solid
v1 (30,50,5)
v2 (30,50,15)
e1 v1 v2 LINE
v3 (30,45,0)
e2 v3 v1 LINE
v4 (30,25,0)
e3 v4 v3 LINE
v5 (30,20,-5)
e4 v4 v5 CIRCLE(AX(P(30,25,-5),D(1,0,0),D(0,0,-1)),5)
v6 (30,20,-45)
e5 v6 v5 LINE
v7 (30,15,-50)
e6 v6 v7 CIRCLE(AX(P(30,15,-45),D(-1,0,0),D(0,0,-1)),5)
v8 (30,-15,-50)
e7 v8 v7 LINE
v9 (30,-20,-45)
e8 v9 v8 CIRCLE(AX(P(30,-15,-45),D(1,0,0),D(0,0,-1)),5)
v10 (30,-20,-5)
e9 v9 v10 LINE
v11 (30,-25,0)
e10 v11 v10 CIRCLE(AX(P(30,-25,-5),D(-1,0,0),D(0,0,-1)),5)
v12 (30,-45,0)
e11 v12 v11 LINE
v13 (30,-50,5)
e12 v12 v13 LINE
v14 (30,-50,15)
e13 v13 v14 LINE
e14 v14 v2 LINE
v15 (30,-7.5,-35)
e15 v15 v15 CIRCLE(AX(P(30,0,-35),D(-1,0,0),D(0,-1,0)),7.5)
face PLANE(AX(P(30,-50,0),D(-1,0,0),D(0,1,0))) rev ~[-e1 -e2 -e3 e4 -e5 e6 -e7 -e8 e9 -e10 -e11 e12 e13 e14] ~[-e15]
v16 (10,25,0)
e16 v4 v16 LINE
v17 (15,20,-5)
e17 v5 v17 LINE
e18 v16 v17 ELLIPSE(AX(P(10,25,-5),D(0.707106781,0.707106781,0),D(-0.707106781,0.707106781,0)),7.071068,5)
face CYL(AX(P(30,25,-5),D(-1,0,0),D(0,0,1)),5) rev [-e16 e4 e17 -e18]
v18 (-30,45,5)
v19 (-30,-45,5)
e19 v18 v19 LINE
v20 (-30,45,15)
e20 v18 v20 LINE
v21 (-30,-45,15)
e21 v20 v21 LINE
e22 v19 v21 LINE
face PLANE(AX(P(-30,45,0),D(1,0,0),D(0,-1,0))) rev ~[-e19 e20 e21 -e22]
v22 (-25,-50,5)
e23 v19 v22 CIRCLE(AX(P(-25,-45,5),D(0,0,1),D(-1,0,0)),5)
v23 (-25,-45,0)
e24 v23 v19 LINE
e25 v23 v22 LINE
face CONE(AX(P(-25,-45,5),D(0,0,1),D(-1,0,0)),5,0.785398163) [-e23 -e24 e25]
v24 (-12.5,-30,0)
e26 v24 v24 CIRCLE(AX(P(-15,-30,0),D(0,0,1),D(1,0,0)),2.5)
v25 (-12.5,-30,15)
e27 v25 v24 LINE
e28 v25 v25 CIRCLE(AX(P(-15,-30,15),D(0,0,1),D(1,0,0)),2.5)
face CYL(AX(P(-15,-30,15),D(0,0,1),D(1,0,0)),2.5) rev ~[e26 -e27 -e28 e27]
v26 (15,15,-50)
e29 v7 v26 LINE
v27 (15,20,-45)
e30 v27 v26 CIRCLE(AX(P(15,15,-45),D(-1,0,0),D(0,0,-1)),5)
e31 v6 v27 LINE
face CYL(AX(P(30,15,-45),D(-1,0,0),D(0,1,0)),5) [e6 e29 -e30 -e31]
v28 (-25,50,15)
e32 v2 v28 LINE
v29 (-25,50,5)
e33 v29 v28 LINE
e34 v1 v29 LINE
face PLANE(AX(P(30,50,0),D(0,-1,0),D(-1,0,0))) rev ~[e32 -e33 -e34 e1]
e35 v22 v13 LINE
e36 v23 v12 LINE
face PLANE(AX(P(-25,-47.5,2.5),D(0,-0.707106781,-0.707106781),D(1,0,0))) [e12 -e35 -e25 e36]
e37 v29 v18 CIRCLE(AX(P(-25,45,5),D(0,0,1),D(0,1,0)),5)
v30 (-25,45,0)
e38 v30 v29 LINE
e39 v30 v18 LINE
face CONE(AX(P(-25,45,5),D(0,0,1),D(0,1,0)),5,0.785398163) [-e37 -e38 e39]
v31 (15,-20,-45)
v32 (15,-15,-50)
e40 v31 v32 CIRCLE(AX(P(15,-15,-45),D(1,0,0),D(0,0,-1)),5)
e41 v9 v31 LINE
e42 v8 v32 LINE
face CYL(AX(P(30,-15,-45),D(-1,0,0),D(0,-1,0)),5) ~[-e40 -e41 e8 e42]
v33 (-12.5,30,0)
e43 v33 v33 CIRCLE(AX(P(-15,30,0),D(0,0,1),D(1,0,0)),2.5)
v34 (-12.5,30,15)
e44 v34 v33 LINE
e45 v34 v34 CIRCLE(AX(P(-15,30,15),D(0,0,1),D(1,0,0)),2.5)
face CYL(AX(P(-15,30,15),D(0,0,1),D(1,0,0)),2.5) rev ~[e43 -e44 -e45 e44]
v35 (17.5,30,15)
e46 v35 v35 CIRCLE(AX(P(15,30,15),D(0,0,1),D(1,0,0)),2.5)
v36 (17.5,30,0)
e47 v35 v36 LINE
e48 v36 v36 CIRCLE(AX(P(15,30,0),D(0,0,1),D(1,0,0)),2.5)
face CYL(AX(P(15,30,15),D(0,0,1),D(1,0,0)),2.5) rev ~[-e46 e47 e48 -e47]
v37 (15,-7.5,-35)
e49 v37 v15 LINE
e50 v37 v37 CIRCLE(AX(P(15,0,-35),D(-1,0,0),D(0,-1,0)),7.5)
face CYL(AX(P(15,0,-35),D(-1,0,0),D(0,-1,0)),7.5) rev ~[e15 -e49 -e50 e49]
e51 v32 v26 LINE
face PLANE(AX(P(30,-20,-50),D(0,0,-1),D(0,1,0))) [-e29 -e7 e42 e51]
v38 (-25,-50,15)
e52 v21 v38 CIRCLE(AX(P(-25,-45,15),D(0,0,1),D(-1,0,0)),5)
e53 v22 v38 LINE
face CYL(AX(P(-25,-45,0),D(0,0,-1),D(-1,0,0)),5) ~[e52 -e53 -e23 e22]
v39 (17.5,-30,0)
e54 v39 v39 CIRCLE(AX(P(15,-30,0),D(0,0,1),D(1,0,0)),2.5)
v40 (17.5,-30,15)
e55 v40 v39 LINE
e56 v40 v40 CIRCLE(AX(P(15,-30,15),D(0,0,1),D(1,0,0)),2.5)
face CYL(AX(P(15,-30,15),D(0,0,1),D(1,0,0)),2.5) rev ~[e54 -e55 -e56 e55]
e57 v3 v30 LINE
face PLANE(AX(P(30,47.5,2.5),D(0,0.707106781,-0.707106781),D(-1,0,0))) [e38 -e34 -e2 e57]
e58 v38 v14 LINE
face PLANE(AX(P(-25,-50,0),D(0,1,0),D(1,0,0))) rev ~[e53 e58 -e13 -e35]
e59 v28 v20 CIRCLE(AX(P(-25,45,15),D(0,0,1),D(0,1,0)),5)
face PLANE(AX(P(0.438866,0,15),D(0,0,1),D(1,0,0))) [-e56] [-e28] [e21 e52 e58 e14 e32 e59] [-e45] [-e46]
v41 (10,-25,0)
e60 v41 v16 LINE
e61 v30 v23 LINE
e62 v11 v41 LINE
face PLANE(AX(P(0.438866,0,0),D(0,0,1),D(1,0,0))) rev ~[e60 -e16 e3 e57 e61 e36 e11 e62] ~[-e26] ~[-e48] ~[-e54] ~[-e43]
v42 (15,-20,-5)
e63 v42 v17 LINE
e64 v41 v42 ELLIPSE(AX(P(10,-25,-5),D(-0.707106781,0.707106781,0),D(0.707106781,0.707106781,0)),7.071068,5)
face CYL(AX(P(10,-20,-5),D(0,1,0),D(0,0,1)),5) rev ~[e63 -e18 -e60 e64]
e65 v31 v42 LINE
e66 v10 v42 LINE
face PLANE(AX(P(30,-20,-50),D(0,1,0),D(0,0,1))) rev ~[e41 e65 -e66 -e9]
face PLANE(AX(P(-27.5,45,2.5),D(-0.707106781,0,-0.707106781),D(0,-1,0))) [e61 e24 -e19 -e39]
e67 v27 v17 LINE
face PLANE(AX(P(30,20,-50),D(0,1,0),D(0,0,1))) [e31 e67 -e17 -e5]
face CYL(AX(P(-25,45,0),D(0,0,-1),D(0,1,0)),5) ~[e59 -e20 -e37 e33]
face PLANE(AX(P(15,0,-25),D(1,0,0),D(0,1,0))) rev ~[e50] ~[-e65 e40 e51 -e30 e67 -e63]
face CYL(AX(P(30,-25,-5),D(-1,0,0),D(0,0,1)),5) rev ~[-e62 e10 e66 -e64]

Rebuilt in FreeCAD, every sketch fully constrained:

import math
import FreeCAD as App
import Part
import Sketcher
Q = App.Units.Quantity


def edges_at(feature, points):
    """Names of the edges that pass closest to the given points."""
    edges = feature.Shape.Edges
    near = lambda p: min(range(len(edges)), key=lambda i: edges[i].distToShape(Part.Vertex(*p))[0])
    return sorted({f"Edge{near(p) + 1}" for p in points})


def add_polygon(sketch, points):
    """Adds a closed chain of lines whose ends are joined by coincident constraints."""
    first, n = sketch.GeometryCount, len(points)
    for a, b in zip(points, points[1:] + points[:1]):
        sketch.addGeometry(Part.LineSegment(App.Vector(*a, 0), App.Vector(*b, 0)), False)
    for i in range(n):
        sketch.addConstraint(Sketcher.Constraint("Coincident", first + i, 2, first + (i + 1) % n, 1))

doc = App.newDocument("Part")
params = doc.addObject("Spreadsheet::Sheet", "Params")
for row, (alias, value) in enumerate([
    ("sketch1_radius", "5 mm"),
    ("sketch1_width", "55 mm"),
    ("sketch1_height", "90 mm"),
    ("pad1_length", "15 mm"),
    ("sketch2_width", "40 mm"),
    ("sketch2_height", "50 mm"),
    ("pad2_length", "15 mm"),
    ("fillet_radius", "5 mm"),
    ("chamfer_size", "5 mm"),
    ("sketch3_diameter", "15 mm"),
    ("pocket1_length", "25 mm"),
    ("sketch4_diameter", "5 mm"),
    ("pocket2_length", "25 mm"),
], start=1):
    params.set(f"A{row}", alias)
    params.set(f"B{row}", "=" + value)
    params.setAlias(f"B{row}", alias)

body = doc.addObject("PartDesign::Body", "Body")

sketch1 = body.newObject("Sketcher::SketchObject", "Sketch")
sketch1.AttachmentSupport = (doc.getObject("XY_Plane"), [""])
sketch1.MapMode = "FlatFace"
sketch1.addGeometry(Part.LineSegment(App.Vector(30, 50, 0), App.Vector(-25, 50, 0)), False)
sketch1.addGeometry(Part.ArcOfCircle(Part.Circle(App.Vector(-25, 45, 0), App.Vector(0, 0, 1), 5), math.radians(90), math.radians(180)), False)
sketch1.addGeometry(Part.LineSegment(App.Vector(-30, 45, 0), App.Vector(-30, -45, 0)), False)
sketch1.addGeometry(Part.ArcOfCircle(Part.Circle(App.Vector(-25, -45, 0), App.Vector(0, 0, 1), 5), math.radians(180), math.radians(270)), False)
sketch1.addGeometry(Part.LineSegment(App.Vector(-25, -50, 0), App.Vector(30, -50, 0)), False)
sketch1.addGeometry(Part.LineSegment(App.Vector(30, -50, 0), App.Vector(30, 50, 0)), False)
sketch1.addConstraint(Sketcher.Constraint("Tangent", 0, 2, 1, 1))
sketch1.addConstraint(Sketcher.Constraint("Tangent", 1, 2, 2, 1))
sketch1.addConstraint(Sketcher.Constraint("Tangent", 2, 2, 3, 1))
sketch1.addConstraint(Sketcher.Constraint("Tangent", 3, 2, 4, 1))
sketch1.addConstraint(Sketcher.Constraint("Coincident", 4, 2, 5, 1))
sketch1.addConstraint(Sketcher.Constraint("Coincident", 5, 2, 0, 1))
sketch1.addConstraint(Sketcher.Constraint("Horizontal", 0))
sketch1.addConstraint(Sketcher.Constraint("Vertical", 2))
sketch1.addConstraint(Sketcher.Constraint("Horizontal", 4))
sketch1.addConstraint(Sketcher.Constraint("Vertical", 5))
sketch1.addConstraint(Sketcher.Constraint("Equal", 1, 3))
sketch1.addConstraint(Sketcher.Constraint("Radius", 1, Q("5 mm")))
sketch1.addConstraint(Sketcher.Constraint("DistanceX", 0, 2, 0, 1, Q("55 mm")))
sketch1.addConstraint(Sketcher.Constraint("DistanceY", 2, 2, 2, 1, Q("90 mm")))
sketch1.addConstraint(Sketcher.Constraint("DistanceX", 1, 3, -1, 1, Q("25 mm")))
sketch1.addConstraint(Sketcher.Constraint("DistanceY", -1, 1, 1, 3, Q("45 mm")))
sketch1.setExpression("Constraints[11]", "Params.sketch1_radius")
sketch1.setExpression("Constraints[12]", "Params.sketch1_width")
sketch1.setExpression("Constraints[13]", "Params.sketch1_height")
pad1 = body.newObject("PartDesign::Pad", "Pad")
pad1.Profile = sketch1
pad1.setExpression("Length", "Params.pad1_length")

sketch2 = body.newObject("Sketcher::SketchObject", "Sketch001")
sketch2.AttachmentSupport = (doc.getObject("YZ_Plane"), [""])
sketch2.MapMode = "FlatFace"
sketch2.AttachmentOffset = App.Placement(App.Vector(0, 0, 30), App.Rotation())
add_polygon(sketch2, [(-20, 0), (-20, -50), (20, -50), (20, 0)])
sketch2.addConstraint(Sketcher.Constraint("Vertical", 0))
sketch2.addConstraint(Sketcher.Constraint("Horizontal", 1))
sketch2.addConstraint(Sketcher.Constraint("Vertical", 2))
sketch2.addConstraint(Sketcher.Constraint("Horizontal", 3))
sketch2.addConstraint(Sketcher.Constraint("Symmetric", 2, 2, 3, 2, -1, 1))
sketch2.addConstraint(Sketcher.Constraint("DistanceX", 1, 1, 1, 2, Q("40 mm")))
sketch2.addConstraint(Sketcher.Constraint("DistanceY", 0, 2, 0, 1, Q("50 mm")))
sketch2.setExpression("Constraints[9]", "Params.sketch2_width")
sketch2.setExpression("Constraints[10]", "Params.sketch2_height")
pad2 = body.newObject("PartDesign::Pad", "Pad001")
pad2.Profile = sketch2
pad2.setExpression("Length", "Params.pad2_length")
pad2.Reversed = True
doc.recompute()

fillet = body.newObject("PartDesign::Fillet", "Fillet")
fillet.Base = (pad2, edges_at(pad2, [
    (22.5, 20, 0),
    (15, 0, 0),
    (22.5, 20, -50),
    (22.5, -20, -50),
    (22.5, -20, 0),
]))
fillet.setExpression("Radius", "Params.fillet_radius")
doc.recompute()

chamfer = body.newObject("PartDesign::Chamfer", "Chamfer")
chamfer.Base = (fillet, edges_at(fillet, [(2.5, 50, 0)]))
chamfer.setExpression("Size", "Params.chamfer_size")

sketch3 = body.newObject("Sketcher::SketchObject", "Sketch002")
sketch3.AttachmentSupport = (doc.getObject("YZ_Plane"), [""])
sketch3.MapMode = "FlatFace"
sketch3.AttachmentOffset = App.Placement(App.Vector(0, 0, 15), App.Rotation())
sketch3.addGeometry(Part.Circle(App.Vector(0, -35, 0), App.Vector(0, 0, 1), 8), False)
sketch3.addConstraint(Sketcher.Constraint("PointOnObject", 0, 3, -2))
sketch3.addConstraint(Sketcher.Constraint("Diameter", 0, Q("15 mm")))
sketch3.addConstraint(Sketcher.Constraint("DistanceY", 0, 3, -1, 1, Q("35 mm")))
sketch3.setExpression("Constraints[1]", "Params.sketch3_diameter")
pocket1 = body.newObject("PartDesign::Pocket", "Pocket")
pocket1.Profile = sketch3
pocket1.setExpression("Length", "Params.pocket1_length")
pocket1.Reversed = True

sketch4 = body.newObject("Sketcher::SketchObject", "Sketch003")
sketch4.AttachmentSupport = (doc.getObject("XY_Plane"), [""])
sketch4.MapMode = "FlatFace"
sketch4.AttachmentOffset = App.Placement(App.Vector(0, 0, 15), App.Rotation())
sketch4.addGeometry(Part.Circle(App.Vector(-15, -30, 0), App.Vector(0, 0, 1), 2.5), False)
sketch4.addGeometry(Part.Circle(App.Vector(15, -30, 0), App.Vector(0, 0, 1), 2.5), False)
sketch4.addGeometry(Part.Circle(App.Vector(15, 30, 0), App.Vector(0, 0, 1), 2.5), False)
sketch4.addGeometry(Part.Circle(App.Vector(-15, 30, 0), App.Vector(0, 0, 1), 2.5), False)
sketch4.addConstraint(Sketcher.Constraint("Equal", 0, 1))
sketch4.addConstraint(Sketcher.Constraint("Equal", 1, 2))
sketch4.addConstraint(Sketcher.Constraint("Equal", 2, 3))
sketch4.addConstraint(Sketcher.Constraint("Symmetric", 0, 3, 2, 3, -1, 1))
sketch4.addConstraint(Sketcher.Constraint("Symmetric", 1, 3, 3, 3, -1, 1))
sketch4.addConstraint(Sketcher.Constraint("Symmetric", 0, 3, 1, 3, -2))
sketch4.addConstraint(Sketcher.Constraint("Diameter", 0, Q("5 mm")))
sketch4.addConstraint(Sketcher.Constraint("DistanceX", 0, 3, -1, 1, Q("15 mm")))
sketch4.addConstraint(Sketcher.Constraint("DistanceY", 0, 3, -1, 1, Q("30 mm")))
sketch4.setExpression("Constraints[6]", "Params.sketch4_diameter")
pocket2 = body.newObject("PartDesign::Pocket", "Pocket001")
pocket2.Profile = sketch4
pocket2.setExpression("Length", "Params.pocket2_length")

doc.recompute()
